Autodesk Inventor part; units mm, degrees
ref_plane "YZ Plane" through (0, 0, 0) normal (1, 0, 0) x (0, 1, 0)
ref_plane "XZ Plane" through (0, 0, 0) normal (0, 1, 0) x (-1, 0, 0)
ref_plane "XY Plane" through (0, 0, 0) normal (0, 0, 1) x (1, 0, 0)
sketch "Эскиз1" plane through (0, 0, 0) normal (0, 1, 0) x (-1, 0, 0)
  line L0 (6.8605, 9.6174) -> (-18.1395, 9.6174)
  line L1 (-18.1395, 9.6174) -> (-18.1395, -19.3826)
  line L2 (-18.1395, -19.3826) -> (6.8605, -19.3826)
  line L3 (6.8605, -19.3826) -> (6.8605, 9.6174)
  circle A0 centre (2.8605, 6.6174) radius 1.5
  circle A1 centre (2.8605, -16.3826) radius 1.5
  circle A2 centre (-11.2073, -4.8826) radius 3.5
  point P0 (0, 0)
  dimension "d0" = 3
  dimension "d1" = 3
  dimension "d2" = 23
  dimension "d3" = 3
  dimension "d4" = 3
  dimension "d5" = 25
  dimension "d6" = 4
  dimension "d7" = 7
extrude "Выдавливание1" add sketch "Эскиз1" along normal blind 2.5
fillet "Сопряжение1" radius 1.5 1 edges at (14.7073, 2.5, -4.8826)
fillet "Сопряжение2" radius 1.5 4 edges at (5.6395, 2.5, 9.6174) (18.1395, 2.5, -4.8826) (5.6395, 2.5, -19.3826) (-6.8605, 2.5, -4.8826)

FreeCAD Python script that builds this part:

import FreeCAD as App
import Part
import Sketcher


def edges_at(feature, points):
    """Names of the edges that pass closest to the given points."""
    edges = feature.Shape.Edges
    near = lambda p: min(range(len(edges)), key=lambda i: edges[i].distToShape(Part.Vertex(*p))[0])
    return sorted({f"Edge{near(p) + 1}" for p in points})


def add_polygon(sketch, points):
    """Adds a closed chain of lines whose ends are joined by coincident constraints."""
    first, n = sketch.GeometryCount, len(points)
    for a, b in zip(points, points[1:] + points[:1]):
        sketch.addGeometry(Part.LineSegment(App.Vector(*a, 0), App.Vector(*b, 0)), False)
    for i in range(n):
        sketch.addConstraint(Sketcher.Constraint("Coincident", first + i, 2, first + (i + 1) % n, 1))

doc = App.newDocument("Part")
body = doc.addObject("PartDesign::Body", "Body")

sketch1 = body.newObject("Sketcher::SketchObject", "Sketch")
sketch1.AttachmentSupport = (doc.getObject("XZ_Plane"), [""])
sketch1.MapMode = "FlatFace"
add_polygon(sketch1, [(-6.9, -19.4), (-6.9, 9.6), (18.1, 9.6), (18.1, -19.4)])
sketch1.addGeometry(Part.Circle(App.Vector(-2.9, -16.4, 0), App.Vector(0, 0, 1), 1.5), False)
sketch1.addGeometry(Part.Circle(App.Vector(11.2, -4.9, 0), App.Vector(0, 0, 1), 3.5), False)
sketch1.addGeometry(Part.Circle(App.Vector(-2.9, 6.6, 0), App.Vector(0, 0, 1), 1.5), False)
sketch1.addConstraint(Sketcher.Constraint("Vertical", 0))
sketch1.addConstraint(Sketcher.Constraint("Horizontal", 1))
sketch1.addConstraint(Sketcher.Constraint("Vertical", 2))
sketch1.addConstraint(Sketcher.Constraint("Horizontal", 3))
sketch1.addConstraint(Sketcher.Constraint("Equal", 4, 6))
sketch1.addConstraint(Sketcher.Constraint("Vertical", 4, 3, 6, 3))
sketch1.addConstraint(Sketcher.Constraint("Diameter", 4, 3.0))
sketch1.addConstraint(Sketcher.Constraint("Diameter", 5, 7.0))
sketch1.addConstraint(Sketcher.Constraint("DistanceX", 1, 1, 1, 2, 25.0))
sketch1.addConstraint(Sketcher.Constraint("DistanceY", 4, 3, 6, 3, 23.0))
sketch1.addConstraint(Sketcher.Constraint("DistanceX", 0, 2, 6, 3, 4.0))
sketch1.addConstraint(Sketcher.Constraint("DistanceY", 6, 3, 0, 2, 3.0))
sketch1.addConstraint(Sketcher.Constraint("DistanceY", 2, 2, 4, 3, 3.0))
sketch1.addConstraint(Sketcher.Constraint("DistanceY", 4, 3, 5, 3, 11.5))
sketch1.addConstraint(Sketcher.Constraint("DistanceX", 4, 3, -1, 1, 2.8605))
sketch1.addConstraint(Sketcher.Constraint("DistanceY", 4, 3, -1, 1, 16.3826))
sketch1.addConstraint(Sketcher.Constraint("DistanceX", -1, 1, 5, 3, 11.2073))
pad1 = body.newObject("PartDesign::Pad", "Pad")
pad1.Profile = sketch1
pad1.Length = 2.5
pad1.Reversed = True
doc.recompute()

fillet = body.newObject("PartDesign::Fillet", "Fillet")
fillet.Base = (pad1, edges_at(pad1, [(14.707, 2.5, -4.883)]))
fillet.Radius = 1.5
doc.recompute()

fillet2 = body.newObject("PartDesign::Fillet", "Fillet001")
fillet2.Base = (fillet, edges_at(fillet, [
    (5.639, 2.5, 9.617),
    (18.14, 2.5, -4.883),
    (5.639, 2.5, -19.383),
    (-6.861, 2.5, -4.883),
]))
fillet2.Radius = 1.5

doc.recompute()
